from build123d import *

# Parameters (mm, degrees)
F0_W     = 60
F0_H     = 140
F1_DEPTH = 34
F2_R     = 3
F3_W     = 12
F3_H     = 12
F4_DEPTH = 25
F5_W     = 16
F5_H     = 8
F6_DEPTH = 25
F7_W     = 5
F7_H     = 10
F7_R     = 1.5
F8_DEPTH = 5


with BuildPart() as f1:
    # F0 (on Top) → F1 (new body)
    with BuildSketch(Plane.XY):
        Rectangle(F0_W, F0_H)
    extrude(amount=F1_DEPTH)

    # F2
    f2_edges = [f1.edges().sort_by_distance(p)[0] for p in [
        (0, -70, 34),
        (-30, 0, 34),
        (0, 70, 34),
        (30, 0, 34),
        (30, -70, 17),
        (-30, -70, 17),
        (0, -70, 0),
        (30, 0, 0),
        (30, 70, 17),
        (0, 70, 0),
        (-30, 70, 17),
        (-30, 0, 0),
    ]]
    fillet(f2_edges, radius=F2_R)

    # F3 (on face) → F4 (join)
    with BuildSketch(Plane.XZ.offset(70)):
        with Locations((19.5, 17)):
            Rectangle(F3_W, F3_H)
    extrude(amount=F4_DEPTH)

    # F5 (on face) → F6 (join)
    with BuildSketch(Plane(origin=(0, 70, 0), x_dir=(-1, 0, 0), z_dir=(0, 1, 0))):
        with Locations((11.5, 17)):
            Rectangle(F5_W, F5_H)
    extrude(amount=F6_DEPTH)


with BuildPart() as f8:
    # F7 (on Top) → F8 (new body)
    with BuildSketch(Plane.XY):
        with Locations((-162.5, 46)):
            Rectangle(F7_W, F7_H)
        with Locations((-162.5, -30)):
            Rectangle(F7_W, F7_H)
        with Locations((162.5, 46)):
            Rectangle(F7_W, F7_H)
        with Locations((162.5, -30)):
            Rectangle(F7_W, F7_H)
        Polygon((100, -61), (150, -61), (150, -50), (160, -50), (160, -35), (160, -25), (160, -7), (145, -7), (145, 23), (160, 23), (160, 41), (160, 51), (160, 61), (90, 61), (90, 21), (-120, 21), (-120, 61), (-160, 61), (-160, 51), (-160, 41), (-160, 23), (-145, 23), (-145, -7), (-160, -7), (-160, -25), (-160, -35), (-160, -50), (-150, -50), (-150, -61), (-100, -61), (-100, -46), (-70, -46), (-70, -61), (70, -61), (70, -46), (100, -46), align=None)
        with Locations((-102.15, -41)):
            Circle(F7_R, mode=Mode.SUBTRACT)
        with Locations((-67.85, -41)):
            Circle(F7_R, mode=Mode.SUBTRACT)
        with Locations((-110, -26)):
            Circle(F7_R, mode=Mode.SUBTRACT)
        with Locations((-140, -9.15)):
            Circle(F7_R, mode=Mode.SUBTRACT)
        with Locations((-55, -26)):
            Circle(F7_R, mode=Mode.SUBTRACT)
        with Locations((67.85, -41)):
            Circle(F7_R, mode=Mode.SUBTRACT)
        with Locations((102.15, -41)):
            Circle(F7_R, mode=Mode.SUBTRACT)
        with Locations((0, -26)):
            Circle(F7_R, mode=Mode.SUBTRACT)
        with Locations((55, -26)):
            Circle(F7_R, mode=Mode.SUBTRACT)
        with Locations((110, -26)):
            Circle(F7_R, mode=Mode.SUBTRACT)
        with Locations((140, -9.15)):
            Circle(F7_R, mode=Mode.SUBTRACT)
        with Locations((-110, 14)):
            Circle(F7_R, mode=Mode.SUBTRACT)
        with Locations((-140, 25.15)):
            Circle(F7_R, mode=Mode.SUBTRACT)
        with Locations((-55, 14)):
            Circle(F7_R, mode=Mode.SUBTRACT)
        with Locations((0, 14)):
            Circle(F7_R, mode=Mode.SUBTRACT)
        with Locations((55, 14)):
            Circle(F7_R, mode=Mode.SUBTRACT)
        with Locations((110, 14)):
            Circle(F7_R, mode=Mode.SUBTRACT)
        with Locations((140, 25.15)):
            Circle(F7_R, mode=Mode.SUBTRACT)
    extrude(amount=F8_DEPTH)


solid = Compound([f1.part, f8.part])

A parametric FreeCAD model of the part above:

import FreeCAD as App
import Part
import Sketcher

V = App.Vector

doc = App.newDocument("Part")
params = doc.addObject("Spreadsheet::Sheet", "Params")
for row, (alias, value) in enumerate([
    ("sketch1_width", "60 mm"),
    ("sketch1_height", "140 mm"),
    ("pad1_length", "34 mm"),
    ("fillet_radius", "3 mm"),
    ("sketch2_width", "12 mm"),
    ("pad2_length", "25 mm"),
    ("sketch3_width", "16 mm"),
    ("sketch3_height", "8 mm"),
    ("pad3_length", "25 mm"),
    ("sketch4_diameter", "3 mm"),
    ("sketch4_width", "5 mm"),
    ("sketch4_width2", "15 mm"),
    ("sketch4_width3", "10 mm"),
    ("sketch4_width4", "50 mm"),
    ("pad4_length", "5 mm"),
], start=1):
    params.set(f"A{row}", alias)
    params.set(f"B{row}", "=" + value)
    params.setAlias(f"B{row}", alias)

body = doc.addObject("PartDesign::Body", "Body")

# Sketch on XY plane
sketch1 = doc.addObject("Sketcher::SketchObject", "Sketch")
body.addObject(sketch1)
sketch1.AttachmentSupport = (doc.XY_Plane, [""])
sketch1.MapMode = "FlatFace"
sketch1.addGeometry(Part.LineSegment(V(-30, 70, 0), V(-30, -70, 0)), False)
sketch1.addGeometry(Part.LineSegment(V(-30, -70, 0), V(30, -70, 0)), False)
sketch1.addGeometry(Part.LineSegment(V(30, -70, 0), V(30, 70, 0)), False)
sketch1.addGeometry(Part.LineSegment(V(30, 70, 0), V(-30, 70, 0)), False)
sketch1.addConstraint(Sketcher.Constraint("Coincident", 0, 2, 1, 1))
sketch1.addConstraint(Sketcher.Constraint("Coincident", 1, 2, 2, 1))
sketch1.addConstraint(Sketcher.Constraint("Coincident", 2, 2, 3, 1))
sketch1.addConstraint(Sketcher.Constraint("Coincident", 3, 2, 0, 1))
sketch1.addConstraint(Sketcher.Constraint("Vertical", 0))
sketch1.addConstraint(Sketcher.Constraint("Horizontal", 1))
sketch1.addConstraint(Sketcher.Constraint("Vertical", 2))
sketch1.addConstraint(Sketcher.Constraint("Horizontal", 3))
sketch1.addConstraint(Sketcher.Constraint("Symmetric", 0, 2, 2, 2, -1, 1))
sketch1.addConstraint(Sketcher.Constraint("DistanceX", 1, 1, 1, 2, 60.0))
sketch1.addConstraint(Sketcher.Constraint("DistanceY", 0, 2, 0, 1, 140.0))
sketch1.setExpression("Constraints[9]", "Params.sketch1_width")
sketch1.setExpression("Constraints[10]", "Params.sketch1_height")
pad1 = doc.addObject("PartDesign::Pad", "Pad")
body.addObject(pad1)
pad1.Profile = sketch1
pad1.setExpression("Length", "Params.pad1_length")
doc.recompute()

fillet = doc.addObject("PartDesign::Fillet", "Fillet")
body.addObject(fillet)
fillet.Base = (pad1, ["Edge1"])
fillet.UseAllEdges = True
fillet.setExpression("Radius", "Params.fillet_radius")

# Sketch on XZ plane
sketch2 = doc.addObject("Sketcher::SketchObject", "Sketch001")
body.addObject(sketch2)
sketch2.AttachmentSupport = (doc.XZ_Plane, [""])
sketch2.MapMode = "FlatFace"
sketch2.AttachmentOffset = App.Placement(V(0, 0, 70), App.Rotation())
sketch2.addGeometry(Part.LineSegment(V(14, 23, 0), V(14, 11, 0)), False)
sketch2.addGeometry(Part.LineSegment(V(14, 11, 0), V(26, 11, 0)), False)
sketch2.addGeometry(Part.LineSegment(V(26, 11, 0), V(26, 23, 0)), False)
sketch2.addGeometry(Part.LineSegment(V(26, 23, 0), V(14, 23, 0)), False)
sketch2.addConstraint(Sketcher.Constraint("Coincident", 0, 2, 1, 1))
sketch2.addConstraint(Sketcher.Constraint("Coincident", 1, 2, 2, 1))
sketch2.addConstraint(Sketcher.Constraint("Coincident", 2, 2, 3, 1))
sketch2.addConstraint(Sketcher.Constraint("Coincident", 3, 2, 0, 1))
sketch2.addConstraint(Sketcher.Constraint("Vertical", 0))
sketch2.addConstraint(Sketcher.Constraint("Horizontal", 1))
sketch2.addConstraint(Sketcher.Constraint("Vertical", 2))
sketch2.addConstraint(Sketcher.Constraint("Horizontal", 3))
sketch2.addConstraint(Sketcher.Constraint("Equal", 3, 0))
sketch2.addConstraint(Sketcher.Constraint("DistanceX", 1, 1, 1, 2, 12.0))
sketch2.addConstraint(Sketcher.Constraint("DistanceY", -1, 1, 0, 2, 11.0))
sketch2.addConstraint(Sketcher.Constraint("DistanceX", -1, 1, 0, 2, 13.5))
sketch2.setExpression("Constraints[9]", "Params.sketch2_width")
pad2 = doc.addObject("PartDesign::Pad", "Pad001")
body.addObject(pad2)
pad2.Profile = sketch2
pad2.setExpression("Length", "Params.pad2_length")

# Sketch on XZ plane
sketch3 = doc.addObject("Sketcher::SketchObject", "Sketch002")
body.addObject(sketch3)
sketch3.AttachmentSupport = (doc.XZ_Plane, [""])
sketch3.MapMode = "FlatFace"
sketch3.AttachmentOffset = App.Placement(V(0, 0, -70), App.Rotation())
sketch3.addGeometry(Part.LineSegment(V(-4, 21, 0), V(-4, 13, 0)), False)
sketch3.addGeometry(Part.LineSegment(V(-4, 13, 0), V(-20, 13, 0)), False)
sketch3.addGeometry(Part.LineSegment(V(-20, 13, 0), V(-20, 21, 0)), False)
sketch3.addGeometry(Part.LineSegment(V(-20, 21, 0), V(-4, 21, 0)), False)
sketch3.addConstraint(Sketcher.Constraint("Coincident", 0, 2, 1, 1))
sketch3.addConstraint(Sketcher.Constraint("Coincident", 1, 2, 2, 1))
sketch3.addConstraint(Sketcher.Constraint("Coincident", 2, 2, 3, 1))
sketch3.addConstraint(Sketcher.Constraint("Coincident", 3, 2, 0, 1))
sketch3.addConstraint(Sketcher.Constraint("Vertical", 0))
sketch3.addConstraint(Sketcher.Constraint("Horizontal", 1))
sketch3.addConstraint(Sketcher.Constraint("Vertical", 2))
sketch3.addConstraint(Sketcher.Constraint("Horizontal", 3))
sketch3.addConstraint(Sketcher.Constraint("DistanceX", 1, 2, 1, 1, 16.0))
sketch3.addConstraint(Sketcher.Constraint("DistanceY", 0, 2, 0, 1, 8.0))
sketch3.addConstraint(Sketcher.Constraint("DistanceY", -1, 1, 0, 2, 13.0))
sketch3.addConstraint(Sketcher.Constraint("DistanceX", 0, 2, -1, 1, 3.5))
sketch3.setExpression("Constraints[8]", "Params.sketch3_width")
sketch3.setExpression("Constraints[9]", "Params.sketch3_height")
pad3 = doc.addObject("PartDesign::Pad", "Pad002")
body.addObject(pad3)
pad3.Profile = sketch3
pad3.setExpression("Length", "Params.pad3_length")
pad3.Reversed = True
body2 = doc.addObject("PartDesign::Body", "Body001")

# Sketch on XY plane
sketch4 = doc.addObject("Sketcher::SketchObject", "Sketch003")
body2.addObject(sketch4)
sketch4.AttachmentSupport = (doc.getObject("XY_Plane001"), [""])
sketch4.MapMode = "FlatFace"
sketch4.addGeometry(Part.LineSegment(V(-165, 51, 0), V(-165, 41, 0)), False)
sketch4.addGeometry(Part.LineSegment(V(-165, 41, 0), V(-160, 41, 0)), False)
sketch4.addGeometry(Part.LineSegment(V(-160, 41, 0), V(-160, 23, 0)), False)
sketch4.addGeometry(Part.LineSegment(V(-160, 23, 0), V(-145, 23, 0)), False)
sketch4.addGeometry(Part.LineSegment(V(-145, 23, 0), V(-145, -7, 0)), False)
sketch4.addGeometry(Part.LineSegment(V(-145, -7, 0), V(-160, -7, 0)), False)
sketch4.addGeometry(Part.LineSegment(V(-160, -7, 0), V(-160, -25, 0)), False)
sketch4.addGeometry(Part.LineSegment(V(-160, -25, 0), V(-165, -25, 0)), False)
sketch4.addGeometry(Part.LineSegment(V(-165, -25, 0), V(-165, -35, 0)), False)
sketch4.addGeometry(Part.LineSegment(V(-165, -35, 0), V(-160, -35, 0)), False)
sketch4.addGeometry(Part.LineSegment(V(-160, -35, 0), V(-160, -50, 0)), False)
sketch4.addGeometry(Part.LineSegment(V(-160, -50, 0), V(-150, -50, 0)), False)
sketch4.addGeometry(Part.LineSegment(V(-150, -50, 0), V(-150, -61, 0)), False)
sketch4.addGeometry(Part.LineSegment(V(-150, -61, 0), V(-100, -61, 0)), False)
sketch4.addGeometry(Part.LineSegment(V(-100, -61, 0), V(-100, -46, 0)), False)
sketch4.addGeometry(Part.LineSegment(V(-100, -46, 0), V(-70, -46, 0)), False)
sketch4.addGeometry(Part.LineSegment(V(-70, -46, 0), V(-70, -61, 0)), False)
sketch4.addGeometry(Part.LineSegment(V(-70, -61, 0), V(70, -61, 0)), False)
sketch4.addGeometry(Part.LineSegment(V(70, -61, 0), V(70, -46, 0)), False)
sketch4.addGeometry(Part.LineSegment(V(70, -46, 0), V(100, -46, 0)), False)
sketch4.addGeometry(Part.LineSegment(V(100, -46, 0), V(100, -61, 0)), False)
sketch4.addGeometry(Part.LineSegment(V(100, -61, 0), V(150, -61, 0)), False)
sketch4.addGeometry(Part.LineSegment(V(150, -61, 0), V(150, -50, 0)), False)
sketch4.addGeometry(Part.LineSegment(V(150, -50, 0), V(160, -50, 0)), False)
sketch4.addGeometry(Part.LineSegment(V(160, -50, 0), V(160, -35, 0)), False)
sketch4.addGeometry(Part.LineSegment(V(160, -35, 0), V(165, -35, 0)), False)
sketch4.addGeometry(Part.LineSegment(V(165, -35, 0), V(165, -25, 0)), False)
sketch4.addGeometry(Part.LineSegment(V(165, -25, 0), V(160, -25, 0)), False)
sketch4.addGeometry(Part.LineSegment(V(160, -25, 0), V(160, -7, 0)), False)
sketch4.addGeometry(Part.LineSegment(V(160, -7, 0), V(145, -7, 0)), False)
sketch4.addGeometry(Part.LineSegment(V(145, -7, 0), V(145, 23, 0)), False)
sketch4.addGeometry(Part.LineSegment(V(145, 23, 0), V(160, 23, 0)), False)
sketch4.addGeometry(Part.LineSegment(V(160, 23, 0), V(160, 41, 0)), False)
sketch4.addGeometry(Part.LineSegment(V(160, 41, 0), V(165, 41, 0)), False)
sketch4.addGeometry(Part.LineSegment(V(165, 41, 0), V(165, 51, 0)), False)
sketch4.addGeometry(Part.LineSegment(V(165, 51, 0), V(160, 51, 0)), False)
sketch4.addGeometry(Part.LineSegment(V(160, 51, 0), V(160, 61, 0)), False)
sketch4.addGeometry(Part.LineSegment(V(160, 61, 0), V(90, 61, 0)), False)
sketch4.addGeometry(Part.LineSegment(V(90, 61, 0), V(90, 21, 0)), False)
sketch4.addGeometry(Part.LineSegment(V(90, 21, 0), V(-120, 21, 0)), False)
sketch4.addGeometry(Part.LineSegment(V(-120, 21, 0), V(-120, 61, 0)), False)
sketch4.addGeometry(Part.LineSegment(V(-120, 61, 0), V(-160, 61, 0)), False)
sketch4.addGeometry(Part.LineSegment(V(-160, 61, 0), V(-160, 51, 0)), False)
sketch4.addGeometry(Part.LineSegment(V(-160, 51, 0), V(-165, 51, 0)), False)
sketch4.addGeometry(Part.Circle(V(-102.2, -41, 0), V(0, 0, 1), 1.5), False)
sketch4.addGeometry(Part.Circle(V(-110, -26, 0), V(0, 0, 1), 1.5), False)
sketch4.addGeometry(Part.Circle(V(-67.8, -41, 0), V(0, 0, 1), 1.5), False)
sketch4.addGeometry(Part.Circle(V(-55, -26, 0), V(0, 0, 1), 1.5), False)
sketch4.addGeometry(Part.Circle(V(-140, -9.2, 0), V(0, 0, 1), 1.5), False)
sketch4.addGeometry(Part.Circle(V(67.8, -41, 0), V(0, 0, 1), 1.5), False)
sketch4.addGeometry(Part.Circle(V(0, -26, 0), V(0, 0, 1), 1.5), False)
sketch4.addGeometry(Part.Circle(V(55, -26, 0), V(0, 0, 1), 1.5), False)
sketch4.addGeometry(Part.Circle(V(102.2, -41, 0), V(0, 0, 1), 1.5), False)
sketch4.addGeometry(Part.Circle(V(110, -26, 0), V(0, 0, 1), 1.5), False)
sketch4.addGeometry(Part.Circle(V(140, -9.2, 0), V(0, 0, 1), 1.5), False)
sketch4.addGeometry(Part.Circle(V(-110, 14, 0), V(0, 0, 1), 1.5), False)
sketch4.addGeometry(Part.Circle(V(-140, 25.1, 0), V(0, 0, 1), 1.5), False)
sketch4.addGeometry(Part.Circle(V(-55, 14, 0), V(0, 0, 1), 1.5), False)
sketch4.addGeometry(Part.Circle(V(0, 14, 0), V(0, 0, 1), 1.5), False)
sketch4.addGeometry(Part.Circle(V(55, 14, 0), V(0, 0, 1), 1.5), False)
sketch4.addGeometry(Part.Circle(V(110, 14, 0), V(0, 0, 1), 1.5), False)
sketch4.addGeometry(Part.Circle(V(140, 25.1, 0), V(0, 0, 1), 1.5), False)
sketch4.addConstraint(Sketcher.Constraint("Coincident", 0, 2, 1, 1))
sketch4.addConstraint(Sketcher.Constraint("Coincident", 1, 2, 2, 1))
sketch4.addConstraint(Sketcher.Constraint("Coincident", 2, 2, 3, 1))
sketch4.addConstraint(Sketcher.Constraint("Coincident", 3, 2, 4, 1))
sketch4.addConstraint(Sketcher.Constraint("Coincident", 4, 2, 5, 1))
sketch4.addConstraint(Sketcher.Constraint("Coincident", 5, 2, 6, 1))
sketch4.addConstraint(Sketcher.Constraint("Coincident", 6, 2, 7, 1))
sketch4.addConstraint(Sketcher.Constraint("Coincident", 7, 2, 8, 1))
sketch4.addConstraint(Sketcher.Constraint("Coincident", 8, 2, 9, 1))
sketch4.addConstraint(Sketcher.Constraint("Coincident", 9, 2, 10, 1))
sketch4.addConstraint(Sketcher.Constraint("Coincident", 10, 2, 11, 1))
sketch4.addConstraint(Sketcher.Constraint("Coincident", 11, 2, 12, 1))
sketch4.addConstraint(Sketcher.Constraint("Coincident", 12, 2, 13, 1))
sketch4.addConstraint(Sketcher.Constraint("Coincident", 13, 2, 14, 1))
sketch4.addConstraint(Sketcher.Constraint("Coincident", 14, 2, 15, 1))
sketch4.addConstraint(Sketcher.Constraint("Coincident", 15, 2, 16, 1))
sketch4.addConstraint(Sketcher.Constraint("Coincident", 16, 2, 17, 1))
sketch4.addConstraint(Sketcher.Constraint("Coincident", 17, 2, 18, 1))
sketch4.addConstraint(Sketcher.Constraint("Coincident", 18, 2, 19, 1))
sketch4.addConstraint(Sketcher.Constraint("Coincident", 19, 2, 20, 1))
sketch4.addConstraint(Sketcher.Constraint("Coincident", 20, 2, 21, 1))
sketch4.addConstraint(Sketcher.Constraint("Coincident", 21, 2, 22, 1))
sketch4.addConstraint(Sketcher.Constraint("Coincident", 22, 2, 23, 1))
sketch4.addConstraint(Sketcher.Constraint("Coincident", 23, 2, 24, 1))
sketch4.addConstraint(Sketcher.Constraint("Coincident", 24, 2, 25, 1))
sketch4.addConstraint(Sketcher.Constraint("Coincident", 25, 2, 26, 1))
sketch4.addConstraint(Sketcher.Constraint("Coincident", 26, 2, 27, 1))
sketch4.addConstraint(Sketcher.Constraint("Coincident", 27, 2, 28, 1))
sketch4.addConstraint(Sketcher.Constraint("Coincident", 28, 2, 29, 1))
sketch4.addConstraint(Sketcher.Constraint("Coincident", 29, 2, 30, 1))
sketch4.addConstraint(Sketcher.Constraint("Coincident", 30, 2, 31, 1))
sketch4.addConstraint(Sketcher.Constraint("Coincident", 31, 2, 32, 1))
sketch4.addConstraint(Sketcher.Constraint("Coincident", 32, 2, 33, 1))
sketch4.addConstraint(Sketcher.Constraint("Coincident", 33, 2, 34, 1))
sketch4.addConstraint(Sketcher.Constraint("Coincident", 34, 2, 35, 1))
sketch4.addConstraint(Sketcher.Constraint("Coincident", 35, 2, 36, 1))
sketch4.addConstraint(Sketcher.Constraint("Coincident", 36, 2, 37, 1))
sketch4.addConstraint(Sketcher.Constraint("Coincident", 37, 2, 38, 1))
sketch4.addConstraint(Sketcher.Constraint("Coincident", 38, 2, 39, 1))
sketch4.addConstraint(Sketcher.Constraint("Coincident", 39, 2, 40, 1))
sketch4.addConstraint(Sketcher.Constraint("Coincident", 40, 2, 41, 1))
sketch4.addConstraint(Sketcher.Constraint("Coincident", 41, 2, 42, 1))
sketch4.addConstraint(Sketcher.Constraint("Coincident", 42, 2, 43, 1))
sketch4.addConstraint(Sketcher.Constraint("Coincident", 43, 2, 0, 1))
sketch4.addConstraint(Sketcher.Constraint("Vertical", 0))
sketch4.addConstraint(Sketcher.Constraint("Horizontal", 1))
sketch4.addConstraint(Sketcher.Constraint("Vertical", 2))
sketch4.addConstraint(Sketcher.Constraint("Horizontal", 3))
sketch4.addConstraint(Sketcher.Constraint("Vertical", 4))
sketch4.addConstraint(Sketcher.Constraint("Horizontal", 5))
sketch4.addConstraint(Sketcher.Constraint("Vertical", 6))
sketch4.addConstraint(Sketcher.Constraint("Horizontal", 7))
sketch4.addConstraint(Sketcher.Constraint("Vertical", 8))
sketch4.addConstraint(Sketcher.Constraint("Horizontal", 9))
sketch4.addConstraint(Sketcher.Constraint("Vertical", 10))
sketch4.addConstraint(Sketcher.Constraint("Horizontal", 11))
sketch4.addConstraint(Sketcher.Constraint("Vertical", 12))
sketch4.addConstraint(Sketcher.Constraint("Horizontal", 13))
sketch4.addConstraint(Sketcher.Constraint("Vertical", 14))
sketch4.addConstraint(Sketcher.Constraint("Horizontal", 15))
sketch4.addConstraint(Sketcher.Constraint("Vertical", 16))
sketch4.addConstraint(Sketcher.Constraint("Horizontal", 17))
sketch4.addConstraint(Sketcher.Constraint("Vertical", 18))
sketch4.addConstraint(Sketcher.Constraint("Horizontal", 19))
sketch4.addConstraint(Sketcher.Constraint("Vertical", 20))
sketch4.addConstraint(Sketcher.Constraint("Horizontal", 21))
sketch4.addConstraint(Sketcher.Constraint("Vertical", 22))
sketch4.addConstraint(Sketcher.Constraint("Horizontal", 23))
sketch4.addConstraint(Sketcher.Constraint("Vertical", 24))
sketch4.addConstraint(Sketcher.Constraint("Horizontal", 25))
sketch4.addConstraint(Sketcher.Constraint("Vertical", 26))
sketch4.addConstraint(Sketcher.Constraint("Horizontal", 27))
sketch4.addConstraint(Sketcher.Constraint("Vertical", 28))
sketch4.addConstraint(Sketcher.Constraint("Horizontal", 29))
sketch4.addConstraint(Sketcher.Constraint("Vertical", 30))
sketch4.addConstraint(Sketcher.Constraint("Horizontal", 31))
sketch4.addConstraint(Sketcher.Constraint("Vertical", 32))
sketch4.addConstraint(Sketcher.Constraint("Horizontal", 33))
sketch4.addConstraint(Sketcher.Constraint("Vertical", 34))
sketch4.addConstraint(Sketcher.Constraint("Horizontal", 35))
sketch4.addConstraint(Sketcher.Constraint("Vertical", 36))
sketch4.addConstraint(Sketcher.Constraint("Horizontal", 37))
sketch4.addConstraint(Sketcher.Constraint("Vertical", 38))
sketch4.addConstraint(Sketcher.Constraint("Horizontal", 39))
sketch4.addConstraint(Sketcher.Constraint("Vertical", 40))
sketch4.addConstraint(Sketcher.Constraint("Horizontal", 41))
sketch4.addConstraint(Sketcher.Constraint("Vertical", 42))
sketch4.addConstraint(Sketcher.Constraint("Horizontal", 43))
sketch4.addConstraint(Sketcher.Constraint("Equal", 44, 45))
sketch4.addConstraint(Sketcher.Constraint("Equal", 45, 46))
sketch4.addConstraint(Sketcher.Constraint("Equal", 46, 47))
sketch4.addConstraint(Sketcher.Constraint("Equal", 47, 48))
sketch4.addConstraint(Sketcher.Constraint("Equal", 48, 49))
sketch4.addConstraint(Sketcher.Constraint("Equal", 49, 50))
sketch4.addConstraint(Sketcher.Constraint("Equal", 50, 51))
sketch4.addConstraint(Sketcher.Constraint("Equal", 51, 52))
sketch4.addConstraint(Sketcher.Constraint("Equal", 52, 53))
sketch4.addConstraint(Sketcher.Constraint("Equal", 53, 54))
sketch4.addConstraint(Sketcher.Constraint("Equal", 54, 55))
sketch4.addConstraint(Sketcher.Constraint("Equal", 55, 56))
sketch4.addConstraint(Sketcher.Constraint("Equal", 56, 57))
sketch4.addConstraint(Sketcher.Constraint("Equal", 57, 58))
sketch4.addConstraint(Sketcher.Constraint("Equal", 58, 59))
sketch4.addConstraint(Sketcher.Constraint("Equal", 59, 60))
sketch4.addConstraint(Sketcher.Constraint("Equal", 60, 61))
sketch4.addConstraint(Sketcher.Constraint("Symmetric", 46, 3, 49, 3, -2))
sketch4.addConstraint(Sketcher.Constraint("Symmetric", 47, 3, 51, 3, -2))
sketch4.addConstraint(Sketcher.Constraint("Symmetric", 44, 3, 52, 3, -2))
sketch4.addConstraint(Sketcher.Constraint("Symmetric", 45, 3, 53, 3, -2))
sketch4.addConstraint(Sketcher.Constraint("Symmetric", 48, 3, 54, 3, -2))
sketch4.addConstraint(Sketcher.Constraint("Symmetric", 57, 3, 59, 3, -2))
sketch4.addConstraint(Sketcher.Constraint("Symmetric", 55, 3, 60, 3, -2))
sketch4.addConstraint(Sketcher.Constraint("Symmetric", 56, 3, 61, 3, -2))
sketch4.addConstraint(Sketcher.Constraint("Symmetric", 15, 2, 18, 2, -2))
sketch4.addConstraint(Sketcher.Constraint("Symmetric", 13, 2, 20, 2, -2))
sketch4.addConstraint(Sketcher.Constraint("Symmetric", 11, 2, 22, 2, -2))
sketch4.addConstraint(Sketcher.Constraint("Symmetric", 9, 2, 24, 2, -2))
sketch4.addConstraint(Sketcher.Constraint("Symmetric", 7, 2, 26, 2, -2))
sketch4.addConstraint(Sketcher.Constraint("Symmetric", 5, 2, 28, 2, -2))
sketch4.addConstraint(Sketcher.Constraint("Symmetric", 3, 2, 30, 2, -2))
sketch4.addConstraint(Sketcher.Constraint("Symmetric", 1, 2, 32, 2, -2))
sketch4.addConstraint(Sketcher.Constraint("Symmetric", 36, 2, 41, 2, -2))
sketch4.addConstraint(Sketcher.Constraint("Symmetric", 34, 2, 43, 2, -2))
sketch4.addConstraint(Sketcher.Constraint("PointOnObject", 50, 3, -2))
sketch4.addConstraint(Sketcher.Constraint("PointOnObject", 58, 3, -2))
sketch4.addConstraint(Sketcher.Constraint("Horizontal", 44, 3, 46, 3))
sketch4.addConstraint(Sketcher.Constraint("Horizontal", 45, 3, 47, 3))
sketch4.addConstraint(Sketcher.Constraint("Horizontal", 47, 3, 50, 3))
sketch4.addConstraint(Sketcher.Constraint("Horizontal", 55, 3, 57, 3))
sketch4.addConstraint(Sketcher.Constraint("Horizontal", 57, 3, 58, 3))
sketch4.addConstraint(Sketcher.Constraint("Horizontal", 13, 2, 16, 2))
sketch4.addConstraint(Sketcher.Constraint("Vertical", 45, 3, 55, 3))
sketch4.addConstraint(Sketcher.Constraint("Vertical", 48, 3, 56, 3))
sketch4.addConstraint(Sketcher.Constraint("Vertical", 47, 3, 57, 3))
sketch4.addConstraint(Sketcher.Constraint("Vertical", 2, 2, 5, 2))
sketch4.addConstraint(Sketcher.Constraint("Vertical", 0, 2, 7, 2))
sketch4.addConstraint(Sketcher.Constraint("Vertical", 6, 2, 9, 2))
sketch4.addConstraint(Sketcher.Constraint("Vertical", 32, 2, 35, 2))
sketch4.addConstraint(Sketcher.Constraint("Equal", 23, 0))
sketch4.addConstraint(Sketcher.Constraint("Equal", 19, 4))
sketch4.addConstraint(Sketcher.Constraint("Equal", 2, 6))
sketch4.addConstraint(Sketcher.Constraint("Equal", 0, 8))
sketch4.addConstraint(Sketcher.Constraint("Equal", 31, 10))
sketch4.addConstraint(Sketcher.Constraint("Equal", 10, 14))
sketch4.addConstraint(Sketcher.Constraint("Equal", 34, 36))
sketch4.addConstraint(Sketcher.Constraint("Equal", 41, 38))
sketch4.addConstraint(Sketcher.Constraint("Diameter", 44, 3.0))
sketch4.addConstraint(Sketcher.Constraint("DistanceX", 1, 1, 1, 2, 5.0))
sketch4.addConstraint(Sketcher.Constraint("DistanceX", 3, 1, 3, 2, 15.0))
sketch4.addConstraint(Sketcher.Constraint("DistanceX", 11, 1, 11, 2, 10.0))
sketch4.addConstraint(Sketcher.Constraint("DistanceX", 13, 1, 13, 2, 50.0))
sketch4.addConstraint(Sketcher.Constraint("DistanceX", 15, 1, 15, 2, 30.0))
sketch4.addConstraint(Sketcher.Constraint("DistanceX", 17, 1, 17, 2, 140.0))
sketch4.addConstraint(Sketcher.Constraint("DistanceX", 37, 2, 37, 1, 70.0))
sketch4.addConstraint(Sketcher.Constraint("DistanceX", 39, 2, 39, 1, 210.0))
sketch4.addConstraint(Sketcher.Constraint("DistanceY", 2, 2, 2, 1, 18.0))
sketch4.addConstraint(Sketcher.Constraint("DistanceY", 12, 2, 12, 1, 11.0))
sketch4.addConstraint(Sketcher.Constraint("DistanceY", 44, 3, -1, 1, 41.0))
sketch4.addConstraint(Sketcher.Constraint("DistanceX", 45, 3, -1, 1, 110.0))
sketch4.addConstraint(Sketcher.Constraint("DistanceY", 45, 3, -1, 1, 26.0))
sketch4.addConstraint(Sketcher.Constraint("DistanceX", 47, 3, -1, 1, 55.0))
sketch4.addConstraint(Sketcher.Constraint("DistanceX", 48, 3, -1, 1, 140.0))
sketch4.addConstraint(Sketcher.Constraint("DistanceY", -1, 1, 55, 3, 14.0))
sketch4.addConstraint(Sketcher.Constraint("DistanceY", -1, 1, 0, 2, 41.0))
sketch4.addConstraint(Sketcher.Constraint("DistanceX", 44, 3, -1, 1, 102.15))
sketch4.addConstraint(Sketcher.Constraint("DistanceX", 46, 3, -1, 1, 67.85))
sketch4.addConstraint(Sketcher.Constraint("DistanceY", 48, 3, -1, 1, 9.15))
sketch4.addConstraint(Sketcher.Constraint("DistanceY", -1, 1, 56, 3, 25.15))
sketch4.setExpression("Constraints[146]", "Params.sketch4_diameter")
sketch4.setExpression("Constraints[147]", "Params.sketch4_width")
sketch4.setExpression("Constraints[148]", "Params.sketch4_width2")
sketch4.setExpression("Constraints[149]", "Params.sketch4_width3")
sketch4.setExpression("Constraints[150]", "Params.sketch4_width4")
pad4 = doc.addObject("PartDesign::Pad", "Pad003")
body2.addObject(pad4)
pad4.Profile = sketch4
pad4.setExpression("Length", "Params.pad4_length")

doc.recompute()
